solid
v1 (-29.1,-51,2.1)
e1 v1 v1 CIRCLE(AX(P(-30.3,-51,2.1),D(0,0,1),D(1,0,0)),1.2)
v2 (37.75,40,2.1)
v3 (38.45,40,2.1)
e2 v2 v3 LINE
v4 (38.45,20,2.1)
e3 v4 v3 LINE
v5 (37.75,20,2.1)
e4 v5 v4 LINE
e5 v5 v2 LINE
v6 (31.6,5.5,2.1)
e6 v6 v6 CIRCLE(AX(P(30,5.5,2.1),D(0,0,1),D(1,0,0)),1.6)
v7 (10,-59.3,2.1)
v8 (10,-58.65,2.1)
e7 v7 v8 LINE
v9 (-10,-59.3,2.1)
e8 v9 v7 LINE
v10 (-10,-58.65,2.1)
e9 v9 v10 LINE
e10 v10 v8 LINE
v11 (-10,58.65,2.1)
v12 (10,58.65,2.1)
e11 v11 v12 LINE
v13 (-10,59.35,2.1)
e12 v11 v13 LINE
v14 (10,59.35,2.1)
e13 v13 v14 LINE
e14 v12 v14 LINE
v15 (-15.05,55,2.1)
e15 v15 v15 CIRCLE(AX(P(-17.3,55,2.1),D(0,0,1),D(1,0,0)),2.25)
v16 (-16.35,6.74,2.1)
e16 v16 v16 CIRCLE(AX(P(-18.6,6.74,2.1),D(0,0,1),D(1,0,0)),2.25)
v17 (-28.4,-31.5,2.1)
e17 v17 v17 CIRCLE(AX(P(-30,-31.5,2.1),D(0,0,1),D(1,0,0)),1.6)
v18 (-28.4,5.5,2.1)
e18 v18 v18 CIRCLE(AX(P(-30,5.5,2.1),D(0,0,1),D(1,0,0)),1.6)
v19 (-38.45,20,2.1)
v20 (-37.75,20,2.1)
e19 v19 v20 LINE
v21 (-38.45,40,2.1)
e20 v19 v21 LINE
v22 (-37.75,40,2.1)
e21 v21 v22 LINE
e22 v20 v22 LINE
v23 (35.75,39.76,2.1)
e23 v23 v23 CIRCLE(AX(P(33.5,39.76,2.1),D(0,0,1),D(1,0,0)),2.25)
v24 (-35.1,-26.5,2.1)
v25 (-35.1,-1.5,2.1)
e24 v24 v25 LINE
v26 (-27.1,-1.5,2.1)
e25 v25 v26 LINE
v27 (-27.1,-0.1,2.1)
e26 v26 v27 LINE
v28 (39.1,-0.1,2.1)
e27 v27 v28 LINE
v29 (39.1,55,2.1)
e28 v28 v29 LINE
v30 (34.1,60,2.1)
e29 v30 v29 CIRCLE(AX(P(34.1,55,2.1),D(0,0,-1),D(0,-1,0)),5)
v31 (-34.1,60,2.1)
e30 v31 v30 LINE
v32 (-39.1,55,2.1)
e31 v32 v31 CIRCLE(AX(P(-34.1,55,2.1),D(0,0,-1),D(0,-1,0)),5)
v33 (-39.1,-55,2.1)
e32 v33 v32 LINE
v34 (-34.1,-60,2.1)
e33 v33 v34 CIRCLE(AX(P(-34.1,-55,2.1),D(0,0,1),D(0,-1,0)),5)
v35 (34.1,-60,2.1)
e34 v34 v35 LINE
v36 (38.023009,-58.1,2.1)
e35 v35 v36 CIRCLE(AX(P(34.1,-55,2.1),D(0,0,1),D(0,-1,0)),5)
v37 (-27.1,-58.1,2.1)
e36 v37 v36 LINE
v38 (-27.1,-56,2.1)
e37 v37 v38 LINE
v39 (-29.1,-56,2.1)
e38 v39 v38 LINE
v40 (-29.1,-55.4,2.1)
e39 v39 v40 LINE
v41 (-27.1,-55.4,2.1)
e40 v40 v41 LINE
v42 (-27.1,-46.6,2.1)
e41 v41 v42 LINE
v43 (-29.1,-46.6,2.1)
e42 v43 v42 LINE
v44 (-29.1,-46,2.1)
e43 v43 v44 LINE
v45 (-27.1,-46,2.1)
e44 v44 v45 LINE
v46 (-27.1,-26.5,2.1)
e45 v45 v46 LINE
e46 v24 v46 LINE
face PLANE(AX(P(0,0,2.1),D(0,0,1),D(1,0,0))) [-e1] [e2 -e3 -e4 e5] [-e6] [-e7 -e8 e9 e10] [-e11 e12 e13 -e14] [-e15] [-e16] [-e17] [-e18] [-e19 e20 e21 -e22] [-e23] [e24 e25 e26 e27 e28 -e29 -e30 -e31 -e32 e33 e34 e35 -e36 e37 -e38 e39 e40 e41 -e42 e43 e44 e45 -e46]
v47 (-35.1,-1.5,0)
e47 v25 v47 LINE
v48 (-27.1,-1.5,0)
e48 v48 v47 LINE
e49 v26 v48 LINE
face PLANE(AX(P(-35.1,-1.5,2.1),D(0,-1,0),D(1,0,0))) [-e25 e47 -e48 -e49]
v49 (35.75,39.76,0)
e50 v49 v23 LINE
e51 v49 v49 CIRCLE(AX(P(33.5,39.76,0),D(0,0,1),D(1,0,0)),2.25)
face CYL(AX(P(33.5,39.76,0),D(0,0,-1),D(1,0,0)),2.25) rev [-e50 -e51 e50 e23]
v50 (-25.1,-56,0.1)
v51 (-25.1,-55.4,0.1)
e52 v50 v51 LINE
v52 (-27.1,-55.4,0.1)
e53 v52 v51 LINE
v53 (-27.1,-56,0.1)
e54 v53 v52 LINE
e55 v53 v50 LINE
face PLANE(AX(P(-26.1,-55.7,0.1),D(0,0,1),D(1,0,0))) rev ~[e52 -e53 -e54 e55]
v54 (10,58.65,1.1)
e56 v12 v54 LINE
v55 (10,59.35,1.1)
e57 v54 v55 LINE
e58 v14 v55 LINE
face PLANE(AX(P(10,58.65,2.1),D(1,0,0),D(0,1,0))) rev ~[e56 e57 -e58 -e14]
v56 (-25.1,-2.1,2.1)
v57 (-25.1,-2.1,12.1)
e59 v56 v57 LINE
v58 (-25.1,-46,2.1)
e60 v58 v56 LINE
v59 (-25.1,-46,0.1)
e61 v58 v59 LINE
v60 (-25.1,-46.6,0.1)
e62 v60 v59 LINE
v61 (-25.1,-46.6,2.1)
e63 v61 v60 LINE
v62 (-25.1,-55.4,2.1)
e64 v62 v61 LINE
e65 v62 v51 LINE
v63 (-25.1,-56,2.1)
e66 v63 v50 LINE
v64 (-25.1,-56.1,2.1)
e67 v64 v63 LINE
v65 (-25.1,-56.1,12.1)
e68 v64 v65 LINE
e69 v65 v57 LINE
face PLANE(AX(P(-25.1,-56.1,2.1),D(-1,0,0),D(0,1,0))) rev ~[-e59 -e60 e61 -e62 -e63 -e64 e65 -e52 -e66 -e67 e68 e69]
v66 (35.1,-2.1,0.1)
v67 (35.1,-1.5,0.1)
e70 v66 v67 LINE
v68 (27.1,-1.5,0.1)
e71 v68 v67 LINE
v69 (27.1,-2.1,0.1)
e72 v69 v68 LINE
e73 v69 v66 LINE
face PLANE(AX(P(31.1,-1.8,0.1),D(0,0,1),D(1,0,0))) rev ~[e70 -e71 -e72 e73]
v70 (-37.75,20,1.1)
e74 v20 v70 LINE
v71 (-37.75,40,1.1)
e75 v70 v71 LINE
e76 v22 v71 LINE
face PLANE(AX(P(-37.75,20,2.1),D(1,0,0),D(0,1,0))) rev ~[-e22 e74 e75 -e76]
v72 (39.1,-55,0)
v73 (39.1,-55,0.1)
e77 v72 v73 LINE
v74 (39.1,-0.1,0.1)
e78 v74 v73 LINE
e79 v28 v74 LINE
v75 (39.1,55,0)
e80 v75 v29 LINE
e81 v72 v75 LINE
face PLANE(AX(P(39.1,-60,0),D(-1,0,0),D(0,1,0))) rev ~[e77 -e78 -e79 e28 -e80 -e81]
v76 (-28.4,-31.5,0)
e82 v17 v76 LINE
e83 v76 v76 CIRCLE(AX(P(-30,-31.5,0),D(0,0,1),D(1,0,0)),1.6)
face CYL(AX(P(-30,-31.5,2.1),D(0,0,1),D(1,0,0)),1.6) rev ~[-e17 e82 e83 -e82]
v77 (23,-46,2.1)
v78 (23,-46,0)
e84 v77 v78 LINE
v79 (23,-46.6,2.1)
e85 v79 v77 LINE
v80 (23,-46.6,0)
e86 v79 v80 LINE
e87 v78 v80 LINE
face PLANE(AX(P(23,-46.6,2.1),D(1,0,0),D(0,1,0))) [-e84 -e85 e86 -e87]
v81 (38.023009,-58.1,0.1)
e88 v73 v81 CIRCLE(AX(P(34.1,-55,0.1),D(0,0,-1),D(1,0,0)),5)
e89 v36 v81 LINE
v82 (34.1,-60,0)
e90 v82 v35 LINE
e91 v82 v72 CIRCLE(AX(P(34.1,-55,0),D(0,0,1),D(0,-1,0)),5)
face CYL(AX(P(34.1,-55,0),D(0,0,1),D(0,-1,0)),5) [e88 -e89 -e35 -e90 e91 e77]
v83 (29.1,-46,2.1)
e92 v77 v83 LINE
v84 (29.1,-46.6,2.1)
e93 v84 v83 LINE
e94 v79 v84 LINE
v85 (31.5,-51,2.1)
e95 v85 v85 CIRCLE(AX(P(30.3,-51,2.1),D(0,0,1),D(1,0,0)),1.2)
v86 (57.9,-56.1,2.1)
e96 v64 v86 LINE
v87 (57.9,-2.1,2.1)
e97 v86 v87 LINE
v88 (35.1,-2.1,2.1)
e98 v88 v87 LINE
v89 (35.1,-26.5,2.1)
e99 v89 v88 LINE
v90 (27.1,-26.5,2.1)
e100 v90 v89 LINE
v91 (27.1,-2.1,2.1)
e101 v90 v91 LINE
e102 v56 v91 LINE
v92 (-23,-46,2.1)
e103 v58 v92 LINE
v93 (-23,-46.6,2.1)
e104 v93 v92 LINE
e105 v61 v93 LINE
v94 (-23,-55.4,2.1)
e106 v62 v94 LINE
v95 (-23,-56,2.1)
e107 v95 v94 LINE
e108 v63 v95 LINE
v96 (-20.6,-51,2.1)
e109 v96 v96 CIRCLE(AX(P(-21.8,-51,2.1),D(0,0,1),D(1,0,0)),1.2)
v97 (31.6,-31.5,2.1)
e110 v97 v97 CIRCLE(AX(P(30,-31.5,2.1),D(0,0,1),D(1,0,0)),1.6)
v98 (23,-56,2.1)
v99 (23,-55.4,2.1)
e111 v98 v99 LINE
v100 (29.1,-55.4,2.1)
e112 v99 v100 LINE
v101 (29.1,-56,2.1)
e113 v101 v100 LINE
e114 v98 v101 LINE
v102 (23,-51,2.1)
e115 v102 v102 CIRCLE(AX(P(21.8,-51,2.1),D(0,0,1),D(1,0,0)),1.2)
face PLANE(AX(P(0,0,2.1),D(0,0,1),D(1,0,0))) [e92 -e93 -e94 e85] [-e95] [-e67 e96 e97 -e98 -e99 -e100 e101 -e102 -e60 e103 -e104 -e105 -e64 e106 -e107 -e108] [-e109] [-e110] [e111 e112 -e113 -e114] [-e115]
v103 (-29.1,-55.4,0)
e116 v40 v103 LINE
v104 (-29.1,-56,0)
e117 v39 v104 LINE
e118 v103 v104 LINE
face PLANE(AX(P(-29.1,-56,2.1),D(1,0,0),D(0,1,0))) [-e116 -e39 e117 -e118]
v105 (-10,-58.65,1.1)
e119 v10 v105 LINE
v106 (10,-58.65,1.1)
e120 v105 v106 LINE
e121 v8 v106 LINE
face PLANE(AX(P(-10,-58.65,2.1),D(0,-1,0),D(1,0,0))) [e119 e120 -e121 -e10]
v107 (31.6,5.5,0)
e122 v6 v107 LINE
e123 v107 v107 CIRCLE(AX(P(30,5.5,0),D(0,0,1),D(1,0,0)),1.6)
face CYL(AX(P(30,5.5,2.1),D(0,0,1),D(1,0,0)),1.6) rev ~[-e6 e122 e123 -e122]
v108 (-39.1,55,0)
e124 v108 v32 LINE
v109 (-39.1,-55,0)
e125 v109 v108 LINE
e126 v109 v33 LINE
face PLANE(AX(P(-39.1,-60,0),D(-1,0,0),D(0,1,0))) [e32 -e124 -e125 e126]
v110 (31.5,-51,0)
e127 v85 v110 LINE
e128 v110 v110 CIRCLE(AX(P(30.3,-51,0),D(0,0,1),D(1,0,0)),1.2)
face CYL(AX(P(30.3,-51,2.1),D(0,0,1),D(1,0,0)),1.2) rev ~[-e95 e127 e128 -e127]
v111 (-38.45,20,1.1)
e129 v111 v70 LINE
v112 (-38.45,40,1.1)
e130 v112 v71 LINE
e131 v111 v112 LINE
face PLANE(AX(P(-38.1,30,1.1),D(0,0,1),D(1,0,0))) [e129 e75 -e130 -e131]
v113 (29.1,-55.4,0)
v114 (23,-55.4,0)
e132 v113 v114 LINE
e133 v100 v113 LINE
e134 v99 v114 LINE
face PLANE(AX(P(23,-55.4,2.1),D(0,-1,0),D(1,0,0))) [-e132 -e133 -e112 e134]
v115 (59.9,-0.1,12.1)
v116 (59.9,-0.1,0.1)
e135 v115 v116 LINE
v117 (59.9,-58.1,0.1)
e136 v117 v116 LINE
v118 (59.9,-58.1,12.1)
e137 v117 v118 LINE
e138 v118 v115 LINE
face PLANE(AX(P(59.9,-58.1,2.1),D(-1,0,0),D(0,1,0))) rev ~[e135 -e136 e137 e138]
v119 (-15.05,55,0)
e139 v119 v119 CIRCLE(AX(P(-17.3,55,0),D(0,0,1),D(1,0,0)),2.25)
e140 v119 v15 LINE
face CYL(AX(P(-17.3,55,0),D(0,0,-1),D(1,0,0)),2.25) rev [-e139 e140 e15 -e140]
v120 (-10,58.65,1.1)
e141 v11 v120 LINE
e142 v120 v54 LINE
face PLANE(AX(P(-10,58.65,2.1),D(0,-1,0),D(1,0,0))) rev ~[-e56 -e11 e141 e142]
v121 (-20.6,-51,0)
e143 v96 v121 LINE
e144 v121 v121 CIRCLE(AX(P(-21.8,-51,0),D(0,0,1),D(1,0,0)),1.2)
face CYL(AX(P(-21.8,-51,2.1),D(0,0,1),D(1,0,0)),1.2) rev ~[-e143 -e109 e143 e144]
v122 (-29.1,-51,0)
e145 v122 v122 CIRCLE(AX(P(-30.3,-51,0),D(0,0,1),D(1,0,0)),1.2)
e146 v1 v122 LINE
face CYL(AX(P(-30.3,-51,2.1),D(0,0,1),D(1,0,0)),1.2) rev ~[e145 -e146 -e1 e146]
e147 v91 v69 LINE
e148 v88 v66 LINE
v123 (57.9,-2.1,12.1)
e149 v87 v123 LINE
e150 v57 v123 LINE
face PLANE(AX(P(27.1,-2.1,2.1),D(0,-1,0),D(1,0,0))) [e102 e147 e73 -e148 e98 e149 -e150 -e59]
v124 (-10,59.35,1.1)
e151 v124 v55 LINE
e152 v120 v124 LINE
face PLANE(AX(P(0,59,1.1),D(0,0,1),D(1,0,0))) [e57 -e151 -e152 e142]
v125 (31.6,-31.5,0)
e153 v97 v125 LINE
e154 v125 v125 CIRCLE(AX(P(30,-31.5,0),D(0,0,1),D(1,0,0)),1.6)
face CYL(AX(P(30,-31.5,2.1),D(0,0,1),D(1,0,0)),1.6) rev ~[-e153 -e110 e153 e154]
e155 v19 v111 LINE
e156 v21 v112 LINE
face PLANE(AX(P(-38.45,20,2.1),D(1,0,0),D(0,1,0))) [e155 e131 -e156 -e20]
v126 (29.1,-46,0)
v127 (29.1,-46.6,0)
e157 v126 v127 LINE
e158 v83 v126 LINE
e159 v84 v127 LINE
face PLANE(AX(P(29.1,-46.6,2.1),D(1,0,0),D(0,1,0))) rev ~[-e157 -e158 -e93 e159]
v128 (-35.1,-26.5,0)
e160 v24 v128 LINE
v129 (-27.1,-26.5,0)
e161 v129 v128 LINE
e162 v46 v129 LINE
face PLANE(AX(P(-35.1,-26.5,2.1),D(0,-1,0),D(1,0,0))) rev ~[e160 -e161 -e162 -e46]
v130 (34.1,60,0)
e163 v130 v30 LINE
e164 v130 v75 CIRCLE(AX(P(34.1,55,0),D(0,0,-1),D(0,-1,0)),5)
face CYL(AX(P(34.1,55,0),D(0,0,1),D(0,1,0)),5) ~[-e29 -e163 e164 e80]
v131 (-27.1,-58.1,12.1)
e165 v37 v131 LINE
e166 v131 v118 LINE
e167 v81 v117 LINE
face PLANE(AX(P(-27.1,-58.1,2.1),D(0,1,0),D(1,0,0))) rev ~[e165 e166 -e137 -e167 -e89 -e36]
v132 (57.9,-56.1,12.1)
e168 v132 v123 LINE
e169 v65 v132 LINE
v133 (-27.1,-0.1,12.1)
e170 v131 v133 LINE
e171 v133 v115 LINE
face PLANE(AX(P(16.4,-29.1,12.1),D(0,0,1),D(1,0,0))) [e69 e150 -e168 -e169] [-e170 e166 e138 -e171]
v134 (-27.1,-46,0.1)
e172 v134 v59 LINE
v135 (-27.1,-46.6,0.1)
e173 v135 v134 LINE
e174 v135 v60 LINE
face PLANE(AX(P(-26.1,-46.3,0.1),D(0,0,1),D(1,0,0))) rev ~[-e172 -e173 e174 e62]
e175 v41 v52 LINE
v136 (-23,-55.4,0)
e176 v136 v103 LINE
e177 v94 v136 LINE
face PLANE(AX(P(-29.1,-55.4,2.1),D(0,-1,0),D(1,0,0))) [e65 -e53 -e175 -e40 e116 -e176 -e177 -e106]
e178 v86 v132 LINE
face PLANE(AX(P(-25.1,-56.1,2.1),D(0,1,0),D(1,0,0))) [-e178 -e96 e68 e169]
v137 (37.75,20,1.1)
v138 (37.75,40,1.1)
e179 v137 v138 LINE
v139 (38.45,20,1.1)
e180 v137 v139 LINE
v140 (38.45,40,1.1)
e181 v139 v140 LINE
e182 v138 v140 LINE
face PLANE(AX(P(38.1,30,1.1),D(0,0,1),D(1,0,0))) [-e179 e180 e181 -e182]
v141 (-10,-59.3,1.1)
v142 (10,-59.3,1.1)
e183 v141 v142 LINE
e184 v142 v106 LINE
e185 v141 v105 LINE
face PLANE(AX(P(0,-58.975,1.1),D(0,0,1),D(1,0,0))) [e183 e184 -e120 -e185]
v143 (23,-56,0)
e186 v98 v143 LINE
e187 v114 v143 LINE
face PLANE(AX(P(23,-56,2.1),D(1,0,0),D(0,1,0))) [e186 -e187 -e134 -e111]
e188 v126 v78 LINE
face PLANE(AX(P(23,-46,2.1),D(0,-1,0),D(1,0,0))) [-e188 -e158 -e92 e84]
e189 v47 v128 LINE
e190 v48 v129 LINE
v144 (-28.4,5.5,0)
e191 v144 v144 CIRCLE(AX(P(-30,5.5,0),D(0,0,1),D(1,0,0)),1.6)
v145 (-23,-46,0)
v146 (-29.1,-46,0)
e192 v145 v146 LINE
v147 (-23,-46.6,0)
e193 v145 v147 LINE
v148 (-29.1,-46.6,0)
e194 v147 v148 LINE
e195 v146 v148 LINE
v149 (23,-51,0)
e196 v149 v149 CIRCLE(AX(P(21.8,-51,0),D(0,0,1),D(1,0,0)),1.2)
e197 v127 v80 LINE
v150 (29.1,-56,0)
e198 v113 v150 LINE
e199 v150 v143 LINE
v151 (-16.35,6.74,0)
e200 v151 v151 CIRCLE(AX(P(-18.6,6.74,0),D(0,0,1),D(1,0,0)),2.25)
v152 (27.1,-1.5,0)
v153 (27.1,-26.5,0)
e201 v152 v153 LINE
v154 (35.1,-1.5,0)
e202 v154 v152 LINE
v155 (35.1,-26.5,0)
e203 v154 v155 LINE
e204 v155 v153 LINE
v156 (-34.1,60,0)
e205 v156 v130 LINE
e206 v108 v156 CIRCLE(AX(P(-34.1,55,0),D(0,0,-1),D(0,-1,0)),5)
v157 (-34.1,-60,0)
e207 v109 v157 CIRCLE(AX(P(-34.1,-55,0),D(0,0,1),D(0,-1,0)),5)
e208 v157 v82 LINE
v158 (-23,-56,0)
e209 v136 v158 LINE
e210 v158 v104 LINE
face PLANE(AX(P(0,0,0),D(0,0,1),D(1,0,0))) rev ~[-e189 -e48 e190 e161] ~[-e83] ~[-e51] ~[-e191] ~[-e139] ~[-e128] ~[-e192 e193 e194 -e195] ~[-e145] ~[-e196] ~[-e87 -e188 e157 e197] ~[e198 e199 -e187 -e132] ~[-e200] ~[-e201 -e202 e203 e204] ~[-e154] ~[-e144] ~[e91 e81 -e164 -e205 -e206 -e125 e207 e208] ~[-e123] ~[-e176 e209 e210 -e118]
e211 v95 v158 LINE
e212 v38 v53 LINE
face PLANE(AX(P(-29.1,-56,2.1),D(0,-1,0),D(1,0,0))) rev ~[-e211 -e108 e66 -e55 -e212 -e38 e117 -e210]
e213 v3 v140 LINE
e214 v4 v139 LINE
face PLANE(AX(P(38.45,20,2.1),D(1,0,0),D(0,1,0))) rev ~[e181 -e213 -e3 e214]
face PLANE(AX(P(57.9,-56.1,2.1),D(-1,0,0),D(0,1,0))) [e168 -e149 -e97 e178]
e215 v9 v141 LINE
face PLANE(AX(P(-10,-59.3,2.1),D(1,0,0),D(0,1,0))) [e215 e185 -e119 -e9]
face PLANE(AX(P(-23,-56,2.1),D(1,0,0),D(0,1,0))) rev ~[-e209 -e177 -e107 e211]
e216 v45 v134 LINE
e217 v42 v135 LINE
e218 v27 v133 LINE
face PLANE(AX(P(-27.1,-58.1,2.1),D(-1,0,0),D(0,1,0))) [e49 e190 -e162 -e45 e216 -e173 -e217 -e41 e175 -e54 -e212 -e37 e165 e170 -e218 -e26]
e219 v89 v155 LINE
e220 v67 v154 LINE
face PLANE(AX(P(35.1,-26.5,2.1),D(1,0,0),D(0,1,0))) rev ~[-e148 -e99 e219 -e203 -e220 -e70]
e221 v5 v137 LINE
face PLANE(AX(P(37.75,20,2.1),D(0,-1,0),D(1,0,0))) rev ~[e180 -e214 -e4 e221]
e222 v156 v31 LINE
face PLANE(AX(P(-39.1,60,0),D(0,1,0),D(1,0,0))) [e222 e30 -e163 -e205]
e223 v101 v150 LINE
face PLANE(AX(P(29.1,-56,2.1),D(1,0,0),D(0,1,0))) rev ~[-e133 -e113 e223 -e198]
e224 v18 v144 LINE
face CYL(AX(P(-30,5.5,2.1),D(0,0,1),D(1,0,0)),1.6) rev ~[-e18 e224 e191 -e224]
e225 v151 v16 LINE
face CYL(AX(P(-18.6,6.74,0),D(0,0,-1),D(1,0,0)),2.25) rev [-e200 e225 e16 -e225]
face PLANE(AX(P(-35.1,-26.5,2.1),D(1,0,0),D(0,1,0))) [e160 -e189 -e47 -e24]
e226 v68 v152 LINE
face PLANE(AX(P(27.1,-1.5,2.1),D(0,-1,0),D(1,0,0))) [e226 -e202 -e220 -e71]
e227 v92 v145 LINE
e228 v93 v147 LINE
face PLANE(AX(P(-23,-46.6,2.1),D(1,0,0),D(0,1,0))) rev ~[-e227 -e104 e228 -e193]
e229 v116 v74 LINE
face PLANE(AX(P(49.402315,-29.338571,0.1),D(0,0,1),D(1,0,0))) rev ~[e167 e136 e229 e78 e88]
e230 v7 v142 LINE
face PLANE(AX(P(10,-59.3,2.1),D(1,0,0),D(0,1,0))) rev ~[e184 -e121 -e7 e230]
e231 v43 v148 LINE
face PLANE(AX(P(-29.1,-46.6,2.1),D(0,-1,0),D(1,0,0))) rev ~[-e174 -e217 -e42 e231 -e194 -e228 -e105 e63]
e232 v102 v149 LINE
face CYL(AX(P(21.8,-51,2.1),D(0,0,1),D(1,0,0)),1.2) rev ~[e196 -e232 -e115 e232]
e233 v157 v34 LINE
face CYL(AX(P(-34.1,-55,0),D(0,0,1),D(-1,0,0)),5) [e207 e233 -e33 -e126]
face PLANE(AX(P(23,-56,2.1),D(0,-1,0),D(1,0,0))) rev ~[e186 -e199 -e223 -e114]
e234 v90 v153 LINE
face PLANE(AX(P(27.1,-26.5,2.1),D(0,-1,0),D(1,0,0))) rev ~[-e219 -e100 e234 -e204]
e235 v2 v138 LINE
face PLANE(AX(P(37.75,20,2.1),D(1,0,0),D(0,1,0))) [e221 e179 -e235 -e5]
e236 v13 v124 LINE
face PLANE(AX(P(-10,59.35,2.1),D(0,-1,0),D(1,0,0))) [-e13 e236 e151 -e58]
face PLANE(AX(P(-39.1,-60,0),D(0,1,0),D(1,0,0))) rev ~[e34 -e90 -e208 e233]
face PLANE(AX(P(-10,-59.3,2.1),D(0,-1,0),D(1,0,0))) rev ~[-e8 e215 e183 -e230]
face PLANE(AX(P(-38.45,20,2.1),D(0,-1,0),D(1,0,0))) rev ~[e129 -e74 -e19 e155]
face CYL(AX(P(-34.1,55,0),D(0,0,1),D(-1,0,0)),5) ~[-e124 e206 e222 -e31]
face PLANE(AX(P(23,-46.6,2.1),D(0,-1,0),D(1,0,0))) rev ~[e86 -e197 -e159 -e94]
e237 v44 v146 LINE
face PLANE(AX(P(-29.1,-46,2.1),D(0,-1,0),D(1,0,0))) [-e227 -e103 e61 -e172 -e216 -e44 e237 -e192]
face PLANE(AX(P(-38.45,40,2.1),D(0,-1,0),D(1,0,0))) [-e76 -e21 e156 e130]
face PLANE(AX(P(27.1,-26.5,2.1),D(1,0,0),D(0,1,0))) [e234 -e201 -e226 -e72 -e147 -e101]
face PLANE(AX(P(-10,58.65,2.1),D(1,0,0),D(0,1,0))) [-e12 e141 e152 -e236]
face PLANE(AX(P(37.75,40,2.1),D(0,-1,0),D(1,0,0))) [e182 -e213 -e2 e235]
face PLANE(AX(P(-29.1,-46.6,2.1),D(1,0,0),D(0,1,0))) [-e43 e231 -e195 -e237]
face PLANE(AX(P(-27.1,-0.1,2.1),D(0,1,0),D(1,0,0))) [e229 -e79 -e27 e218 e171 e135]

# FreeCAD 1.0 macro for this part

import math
import FreeCAD as App
import Part
import Sketcher


def edges_at(feature, points):
    """Names of the edges that pass closest to the given points."""
    edges = feature.Shape.Edges
    near = lambda p: min(range(len(edges)), key=lambda i: edges[i].distToShape(Part.Vertex(*p))[0])
    return sorted({f"Edge{near(p) + 1}" for p in points})

doc = App.newDocument("Part")
body = doc.addObject("PartDesign::Body", "Body")

sketch1 = body.newObject("Sketcher::SketchObject", "Sketch")
sketch1.AttachmentSupport = (doc.getObject("XY_Plane"), [""])
sketch1.MapMode = "FlatFace"
sketch1.addGeometry([
    Part.LineSegment(App.Vector(-39.1, 60, 0), App.Vector(-39.1, -60, 0)),
    Part.LineSegment(App.Vector(-39.1, -60, 0), App.Vector(39.1, -60, 0)),
    Part.LineSegment(App.Vector(39.1, -60, 0), App.Vector(39.1, 60, 0)),
    Part.LineSegment(App.Vector(39.1, 60, 0), App.Vector(-39.1, 60, 0)),
    Part.Circle(App.Vector(-18.6, 6.7, 0), App.Vector(0, 0, 1), 2.2),
    Part.Circle(App.Vector(-17.3, 55, 0), App.Vector(0, 0, 1), 2.2),
    Part.Circle(App.Vector(33.5, 39.8, 0), App.Vector(0, 0, 1), 2.2),
], False)
sketch1.addConstraint([
    Sketcher.Constraint("Coincident", 0, 2, 1, 1),
    Sketcher.Constraint("Coincident", 1, 2, 2, 1),
    Sketcher.Constraint("Coincident", 2, 2, 3, 1),
    Sketcher.Constraint("Coincident", 3, 2, 0, 1),
    Sketcher.Constraint("Vertical", 0),
    Sketcher.Constraint("Horizontal", 1),
    Sketcher.Constraint("Vertical", 2),
    Sketcher.Constraint("Horizontal", 3),
    Sketcher.Constraint("Equal", 4, 5),
    Sketcher.Constraint("Equal", 5, 6),
    Sketcher.Constraint("Symmetric", 0, 2, 2, 2, -1, 1),
    Sketcher.Constraint("Diameter", 4, 4.5),
    Sketcher.Constraint("DistanceY", 0, 2, 0, 1, 120.0),
    Sketcher.Constraint("DistanceX", 1, 1, 1, 2, 78.2),
    Sketcher.Constraint("DistanceY", -1, 1, 5, 3, 55.0),
    Sketcher.Constraint("DistanceX", 4, 3, -1, 1, 18.6),
    Sketcher.Constraint("DistanceX", 5, 3, -1, 1, 17.3),
    Sketcher.Constraint("DistanceX", -1, 1, 6, 3, 33.5),
    Sketcher.Constraint("DistanceY", -1, 1, 4, 3, 6.74),
    Sketcher.Constraint("DistanceY", -1, 1, 6, 3, 39.76),
])
pad1 = body.newObject("PartDesign::Pad", "Pad")
pad1.Profile = sketch1
pad1.Length = 2.1

sketch2 = body.newObject("Sketcher::SketchObject", "Sketch001")
sketch2.AttachmentSupport = (doc.getObject("XY_Plane"), [""])
sketch2.MapMode = "FlatFace"
sketch2.AttachmentOffset = App.Placement(App.Vector(0, 0, 2.1), App.Rotation())
sketch2.addGeometry(Part.Circle(App.Vector(-30.3, -51, 0), App.Vector(0, 0, 1), 1.2), False)
sketch2.addConstraint([
    Sketcher.Constraint("Diameter", 0, 2.4),
    Sketcher.Constraint("DistanceY", 0, 3, -1, 1, 51.0),
    Sketcher.Constraint("DistanceX", 0, 3, -1, 1, 30.3),
])
pocket1 = body.newObject("PartDesign::Pocket", "Pocket")
pocket1.Profile = sketch2
pocket1.Type = "UpToFirst"

sketch3 = body.newObject("Sketcher::SketchObject", "Sketch002")
sketch3.AttachmentSupport = (doc.getObject("XY_Plane"), [""])
sketch3.MapMode = "FlatFace"
sketch3.AttachmentOffset = App.Placement(App.Vector(0, 0, 2.1), App.Rotation())
sketch3.addGeometry(Part.Circle(App.Vector(-21.8, -51, 0), App.Vector(0, 0, 1), 1.2), False)
sketch3.addConstraint([
    Sketcher.Constraint("Diameter", 0, 2.4),
    Sketcher.Constraint("DistanceY", 0, 3, -1, 1, 51.0),
    Sketcher.Constraint("DistanceX", 0, 3, -1, 1, 21.8),
])
pocket2 = body.newObject("PartDesign::Pocket", "Pocket001")
pocket2.Profile = sketch3
pocket2.Type = "UpToFirst"

sketch4 = body.newObject("Sketcher::SketchObject", "Sketch003")
sketch4.AttachmentSupport = (doc.getObject("XY_Plane"), [""])
sketch4.MapMode = "FlatFace"
sketch4.AttachmentOffset = App.Placement(App.Vector(0, 0, 2.1), App.Rotation())
sketch4.addGeometry(Part.Circle(App.Vector(21.8, -51, 0), App.Vector(0, 0, 1), 1.2), False)
sketch4.addConstraint([
    Sketcher.Constraint("Diameter", 0, 2.4),
    Sketcher.Constraint("DistanceY", 0, 3, -1, 1, 51.0),
    Sketcher.Constraint("DistanceX", -1, 1, 0, 3, 21.8),
])
pocket3 = body.newObject("PartDesign::Pocket", "Pocket002")
pocket3.Profile = sketch4
pocket3.Type = "UpToFirst"

sketch5 = body.newObject("Sketcher::SketchObject", "Sketch004")
sketch5.AttachmentSupport = (doc.getObject("XY_Plane"), [""])
sketch5.MapMode = "FlatFace"
sketch5.AttachmentOffset = App.Placement(App.Vector(0, 0, 2.1), App.Rotation())
sketch5.addGeometry(Part.Circle(App.Vector(30.3, -51, 0), App.Vector(0, 0, 1), 1.2), False)
sketch5.addConstraint([
    Sketcher.Constraint("Diameter", 0, 2.4),
    Sketcher.Constraint("DistanceY", 0, 3, -1, 1, 51.0),
    Sketcher.Constraint("DistanceX", -1, 1, 0, 3, 30.3),
])
pocket4 = body.newObject("PartDesign::Pocket", "Pocket003")
pocket4.Profile = sketch5
pocket4.Type = "UpToFirst"

sketch6 = body.newObject("Sketcher::SketchObject", "Sketch005")
sketch6.AttachmentSupport = (doc.getObject("XY_Plane"), [""])
sketch6.MapMode = "FlatFace"
sketch6.AttachmentOffset = App.Placement(App.Vector(0, 0, 2.1), App.Rotation())
sketch6.addGeometry([
    Part.LineSegment(App.Vector(-29.1, -46, 0), App.Vector(-29.1, -46.6, 0)),
    Part.LineSegment(App.Vector(-29.1, -46.6, 0), App.Vector(-23, -46.6, 0)),
    Part.LineSegment(App.Vector(-23, -46.6, 0), App.Vector(-23, -46, 0)),
    Part.LineSegment(App.Vector(-23, -46, 0), App.Vector(-29.1, -46, 0)),
], False)
sketch6.addConstraint([
    Sketcher.Constraint("Coincident", 0, 2, 1, 1),
    Sketcher.Constraint("Coincident", 1, 2, 2, 1),
    Sketcher.Constraint("Coincident", 2, 2, 3, 1),
    Sketcher.Constraint("Coincident", 3, 2, 0, 1),
    Sketcher.Constraint("Vertical", 0),
    Sketcher.Constraint("Horizontal", 1),
    Sketcher.Constraint("Vertical", 2),
    Sketcher.Constraint("Horizontal", 3),
    Sketcher.Constraint("DistanceX", 1, 1, 1, 2, 6.1),
    Sketcher.Constraint("DistanceY", 0, 2, 0, 1, 0.6),
    Sketcher.Constraint("DistanceX", 1, 2, -1, 1, 23.0),
    Sketcher.Constraint("DistanceY", 2, 2, -1, 1, 46.0),
])
pocket5 = body.newObject("PartDesign::Pocket", "Pocket004")
pocket5.Profile = sketch6
pocket5.Type = "UpToFirst"

sketch7 = body.newObject("Sketcher::SketchObject", "Sketch006")
sketch7.AttachmentSupport = (doc.getObject("XY_Plane"), [""])
sketch7.MapMode = "FlatFace"
sketch7.AttachmentOffset = App.Placement(App.Vector(0, 0, 2.1), App.Rotation())
sketch7.addGeometry([
    Part.LineSegment(App.Vector(-29.1, -55.4, 0), App.Vector(-29.1, -56, 0)),
    Part.LineSegment(App.Vector(-29.1, -56, 0), App.Vector(-23, -56, 0)),
    Part.LineSegment(App.Vector(-23, -56, 0), App.Vector(-23, -55.4, 0)),
    Part.LineSegment(App.Vector(-23, -55.4, 0), App.Vector(-29.1, -55.4, 0)),
], False)
sketch7.addConstraint([
    Sketcher.Constraint("Coincident", 0, 2, 1, 1),
    Sketcher.Constraint("Coincident", 1, 2, 2, 1),
    Sketcher.Constraint("Coincident", 2, 2, 3, 1),
    Sketcher.Constraint("Coincident", 3, 2, 0, 1),
    Sketcher.Constraint("Vertical", 0),
    Sketcher.Constraint("Horizontal", 1),
    Sketcher.Constraint("Vertical", 2),
    Sketcher.Constraint("Horizontal", 3),
    Sketcher.Constraint("DistanceX", 1, 1, 1, 2, 6.1),
    Sketcher.Constraint("DistanceY", 0, 2, 0, 1, 0.6),
    Sketcher.Constraint("DistanceY", 0, 2, -1, 1, 56.0),
    Sketcher.Constraint("DistanceX", 1, 2, -1, 1, 23.0),
])
pocket6 = body.newObject("PartDesign::Pocket", "Pocket005")
pocket6.Profile = sketch7
pocket6.Type = "UpToFirst"

sketch8 = body.newObject("Sketcher::SketchObject", "Sketch007")
sketch8.AttachmentSupport = (doc.getObject("XY_Plane"), [""])
sketch8.MapMode = "FlatFace"
sketch8.AttachmentOffset = App.Placement(App.Vector(0, 0, 2.1), App.Rotation())
sketch8.addGeometry([
    Part.LineSegment(App.Vector(23, -55.4, 0), App.Vector(23, -56, 0)),
    Part.LineSegment(App.Vector(23, -56, 0), App.Vector(29.1, -56, 0)),
    Part.LineSegment(App.Vector(29.1, -56, 0), App.Vector(29.1, -55.4, 0)),
    Part.LineSegment(App.Vector(29.1, -55.4, 0), App.Vector(23, -55.4, 0)),
], False)
sketch8.addConstraint([
    Sketcher.Constraint("Coincident", 0, 2, 1, 1),
    Sketcher.Constraint("Coincident", 1, 2, 2, 1),
    Sketcher.Constraint("Coincident", 2, 2, 3, 1),
    Sketcher.Constraint("Coincident", 3, 2, 0, 1),
    Sketcher.Constraint("Vertical", 0),
    Sketcher.Constraint("Horizontal", 1),
    Sketcher.Constraint("Vertical", 2),
    Sketcher.Constraint("Horizontal", 3),
    Sketcher.Constraint("DistanceX", 1, 1, 1, 2, 6.1),
    Sketcher.Constraint("DistanceY", 0, 2, 0, 1, 0.6),
    Sketcher.Constraint("DistanceX", -1, 1, 0, 2, 23.0),
    Sketcher.Constraint("DistanceY", 0, 2, -1, 1, 56.0),
])
pocket7 = body.newObject("PartDesign::Pocket", "Pocket006")
pocket7.Profile = sketch8
pocket7.Type = "UpToFirst"

sketch9 = body.newObject("Sketcher::SketchObject", "Sketch008")
sketch9.AttachmentSupport = (doc.getObject("XY_Plane"), [""])
sketch9.MapMode = "FlatFace"
sketch9.AttachmentOffset = App.Placement(App.Vector(0, 0, 2.1), App.Rotation())
sketch9.addGeometry([
    Part.LineSegment(App.Vector(23, -46, 0), App.Vector(23, -46.6, 0)),
    Part.LineSegment(App.Vector(23, -46.6, 0), App.Vector(29.1, -46.6, 0)),
    Part.LineSegment(App.Vector(29.1, -46.6, 0), App.Vector(29.1, -46, 0)),
    Part.LineSegment(App.Vector(29.1, -46, 0), App.Vector(23, -46, 0)),
], False)
sketch9.addConstraint([
    Sketcher.Constraint("Coincident", 0, 2, 1, 1),
    Sketcher.Constraint("Coincident", 1, 2, 2, 1),
    Sketcher.Constraint("Coincident", 2, 2, 3, 1),
    Sketcher.Constraint("Coincident", 3, 2, 0, 1),
    Sketcher.Constraint("Vertical", 0),
    Sketcher.Constraint("Horizontal", 1),
    Sketcher.Constraint("Vertical", 2),
    Sketcher.Constraint("Horizontal", 3),
    Sketcher.Constraint("DistanceX", 1, 1, 1, 2, 6.1),
    Sketcher.Constraint("DistanceY", 0, 2, 0, 1, 0.6),
    Sketcher.Constraint("DistanceX", -1, 1, 0, 2, 23.0),
    Sketcher.Constraint("DistanceY", 2, 2, -1, 1, 46.0),
])
pocket8 = body.newObject("PartDesign::Pocket", "Pocket007")
pocket8.Profile = sketch9
pocket8.Type = "UpToFirst"

sketch10 = body.newObject("Sketcher::SketchObject", "Sketch009")
sketch10.AttachmentSupport = (doc.getObject("XY_Plane"), [""])
sketch10.MapMode = "FlatFace"
sketch10.AttachmentOffset = App.Placement(App.Vector(0, 0, 2.1), App.Rotation())
sketch10.addGeometry(Part.Circle(App.Vector(-30, -31.5, 0), App.Vector(0, 0, 1), 1.6), False)
sketch10.addConstraint([
    Sketcher.Constraint("Diameter", 0, 3.2),
    Sketcher.Constraint("DistanceX", 0, 3, -1, 1, 30.0),
    Sketcher.Constraint("DistanceY", 0, 3, -1, 1, 31.5),
])
pocket9 = body.newObject("PartDesign::Pocket", "Pocket008")
pocket9.Profile = sketch10
pocket9.Type = "UpToFirst"

sketch11 = body.newObject("Sketcher::SketchObject", "Sketch010")
sketch11.AttachmentSupport = (doc.getObject("XY_Plane"), [""])
sketch11.MapMode = "FlatFace"
sketch11.AttachmentOffset = App.Placement(App.Vector(0, 0, 2.1), App.Rotation())
sketch11.addGeometry(Part.Circle(App.Vector(30, -31.5, 0), App.Vector(0, 0, 1), 1.6), False)
sketch11.addConstraint([
    Sketcher.Constraint("Diameter", 0, 3.2),
    Sketcher.Constraint("DistanceX", -1, 1, 0, 3, 30.0),
    Sketcher.Constraint("DistanceY", 0, 3, -1, 1, 31.5),
])
pocket10 = body.newObject("PartDesign::Pocket", "Pocket009")
pocket10.Profile = sketch11
pocket10.Type = "UpToFirst"

sketch12 = body.newObject("Sketcher::SketchObject", "Sketch011")
sketch12.AttachmentSupport = (doc.getObject("XY_Plane"), [""])
sketch12.MapMode = "FlatFace"
sketch12.AttachmentOffset = App.Placement(App.Vector(0, 0, 2.1), App.Rotation())
sketch12.addGeometry(Part.Circle(App.Vector(30, 5.5, 0), App.Vector(0, 0, 1), 1.6), False)
sketch12.addConstraint([
    Sketcher.Constraint("Diameter", 0, 3.2),
    Sketcher.Constraint("DistanceX", -1, 1, 0, 3, 30.0),
    Sketcher.Constraint("DistanceY", -1, 1, 0, 3, 5.5),
])
pocket11 = body.newObject("PartDesign::Pocket", "Pocket010")
pocket11.Profile = sketch12
pocket11.Type = "UpToFirst"

sketch13 = body.newObject("Sketcher::SketchObject", "Sketch012")
sketch13.AttachmentSupport = (doc.getObject("XY_Plane"), [""])
sketch13.MapMode = "FlatFace"
sketch13.AttachmentOffset = App.Placement(App.Vector(0, 0, 2.1), App.Rotation())
sketch13.addGeometry(Part.Circle(App.Vector(-30, 5.5, 0), App.Vector(0, 0, 1), 1.6), False)
sketch13.addConstraint([
    Sketcher.Constraint("Diameter", 0, 3.2),
    Sketcher.Constraint("DistanceX", 0, 3, -1, 1, 30.0),
    Sketcher.Constraint("DistanceY", -1, 1, 0, 3, 5.5),
])
pocket12 = body.newObject("PartDesign::Pocket", "Pocket011")
pocket12.Profile = sketch13
pocket12.Type = "UpToFirst"

sketch14 = body.newObject("Sketcher::SketchObject", "Sketch013")
sketch14.AttachmentSupport = (doc.getObject("XY_Plane"), [""])
sketch14.MapMode = "FlatFace"
sketch14.AttachmentOffset = App.Placement(App.Vector(0, 0, 2.1), App.Rotation())
sketch14.addGeometry([
    Part.LineSegment(App.Vector(-35, -2, 0), App.Vector(-35, -26, 0)),
    Part.LineSegment(App.Vector(-35, -26, 0), App.Vector(-27, -26, 0)),
    Part.LineSegment(App.Vector(-27, -26, 0), App.Vector(-27, -2, 0)),
    Part.LineSegment(App.Vector(-27, -2, 0), App.Vector(-35, -2, 0)),
], False)
sketch14.addConstraint([
    Sketcher.Constraint("Coincident", 0, 2, 1, 1),
    Sketcher.Constraint("Coincident", 1, 2, 2, 1),
    Sketcher.Constraint("Coincident", 2, 2, 3, 1),
    Sketcher.Constraint("Coincident", 3, 2, 0, 1),
    Sketcher.Constraint("Vertical", 0),
    Sketcher.Constraint("Horizontal", 1),
    Sketcher.Constraint("Vertical", 2),
    Sketcher.Constraint("Horizontal", 3),
    Sketcher.Constraint("DistanceX", 1, 1, 1, 2, 8.0),
    Sketcher.Constraint("DistanceY", 0, 2, 0, 1, 25.0),
    Sketcher.Constraint("DistanceX", 0, 2, -1, 1, 35.1),
    Sketcher.Constraint("DistanceY", 0, 2, -1, 1, 26.5),
])
pocket13 = body.newObject("PartDesign::Pocket", "Pocket012")
pocket13.Profile = sketch14
pocket13.Type = "UpToFirst"

sketch15 = body.newObject("Sketcher::SketchObject", "Sketch014")
sketch15.AttachmentSupport = (doc.getObject("XY_Plane"), [""])
sketch15.MapMode = "FlatFace"
sketch15.AttachmentOffset = App.Placement(App.Vector(0, 0, 2.1), App.Rotation())
sketch15.addGeometry([
    Part.LineSegment(App.Vector(27, -2, 0), App.Vector(27, -26, 0)),
    Part.LineSegment(App.Vector(27, -26, 0), App.Vector(35, -26, 0)),
    Part.LineSegment(App.Vector(35, -26, 0), App.Vector(35, -2, 0)),
    Part.LineSegment(App.Vector(35, -2, 0), App.Vector(27, -2, 0)),
], False)
sketch15.addConstraint([
    Sketcher.Constraint("Coincident", 0, 2, 1, 1),
    Sketcher.Constraint("Coincident", 1, 2, 2, 1),
    Sketcher.Constraint("Coincident", 2, 2, 3, 1),
    Sketcher.Constraint("Coincident", 3, 2, 0, 1),
    Sketcher.Constraint("Vertical", 0),
    Sketcher.Constraint("Horizontal", 1),
    Sketcher.Constraint("Vertical", 2),
    Sketcher.Constraint("Horizontal", 3),
    Sketcher.Constraint("DistanceX", 1, 1, 1, 2, 8.0),
    Sketcher.Constraint("DistanceY", 0, 2, 0, 1, 25.0),
    Sketcher.Constraint("DistanceX", -1, 1, 0, 2, 27.1),
    Sketcher.Constraint("DistanceY", 0, 2, -1, 1, 26.5),
])
pocket14 = body.newObject("PartDesign::Pocket", "Pocket013")
pocket14.Profile = sketch15
pocket14.Type = "UpToFirst"
doc.recompute()

fillet = body.newObject("PartDesign::Fillet", "Fillet")
fillet.Base = (pocket14, edges_at(pocket14, [
    (39.1, -60, 1.05),
    (-39.1, -60, 1.05),
    (-39.1, 60, 1.05),
    (39.1, 60, 1.05),
]))
fillet.Radius = 5

sketch16 = body.newObject("Sketcher::SketchObject", "Sketch015")
sketch16.AttachmentSupport = (doc.getObject("XY_Plane"), [""])
sketch16.MapMode = "FlatFace"
sketch16.AttachmentOffset = App.Placement(App.Vector(0, 0, 2.1), App.Rotation())
sketch16.addGeometry([
    Part.LineSegment(App.Vector(-27, 0, 0), App.Vector(-27, -58, 0)),
    Part.LineSegment(App.Vector(-27, -58, 0), App.Vector(60, -58, 0)),
    Part.LineSegment(App.Vector(60, -58, 0), App.Vector(60, 0, 0)),
    Part.LineSegment(App.Vector(60, 0, 0), App.Vector(-27, 0, 0)),
    Part.LineSegment(App.Vector(58, -56, 0), App.Vector(-25, -56, 0)),
    Part.LineSegment(App.Vector(-25, -56, 0), App.Vector(-25, -2, 0)),
    Part.LineSegment(App.Vector(-25, -2, 0), App.Vector(58, -2, 0)),
    Part.LineSegment(App.Vector(58, -2, 0), App.Vector(58, -56, 0)),
], False)
sketch16.addConstraint([
    Sketcher.Constraint("Coincident", 0, 2, 1, 1),
    Sketcher.Constraint("Coincident", 1, 2, 2, 1),
    Sketcher.Constraint("Coincident", 2, 2, 3, 1),
    Sketcher.Constraint("Coincident", 3, 2, 0, 1),
    Sketcher.Constraint("Coincident", 4, 2, 5, 1),
    Sketcher.Constraint("Coincident", 5, 2, 6, 1),
    Sketcher.Constraint("Coincident", 6, 2, 7, 1),
    Sketcher.Constraint("Coincident", 7, 2, 4, 1),
    Sketcher.Constraint("Vertical", 0),
    Sketcher.Constraint("Horizontal", 1),
    Sketcher.Constraint("Vertical", 2),
    Sketcher.Constraint("Horizontal", 3),
    Sketcher.Constraint("Horizontal", 4),
    Sketcher.Constraint("Vertical", 5),
    Sketcher.Constraint("Horizontal", 6),
    Sketcher.Constraint("Vertical", 7),
    Sketcher.Constraint("DistanceX", 1, 1, 1, 2, 87.0),
    Sketcher.Constraint("DistanceX", 4, 2, 4, 1, 83.0),
    Sketcher.Constraint("DistanceY", 0, 2, 0, 1, 58.0),
    Sketcher.Constraint("DistanceY", 5, 1, 5, 2, 54.0),
    Sketcher.Constraint("DistanceX", 0, 2, 4, 2, 2.0),
    Sketcher.Constraint("DistanceY", 0, 2, 4, 2, 2.0),
    Sketcher.Constraint("DistanceX", 0, 2, -1, 1, 27.1),
    Sketcher.Constraint("DistanceY", 0, 2, -1, 1, 58.1),
])
pad2 = body.newObject("PartDesign::Pad", "Pad001")
pad2.Profile = sketch16
pad2.Length = 10

sketch17 = body.newObject("Sketcher::SketchObject", "Sketch016")
sketch17.AttachmentSupport = (doc.getObject("XY_Plane"), [""])
sketch17.MapMode = "FlatFace"
sketch17.AttachmentOffset = App.Placement(App.Vector(0, 0, 2.1), App.Rotation())
sketch17.addGeometry([
    Part.LineSegment(App.Vector(-38.5, 40, 0), App.Vector(-38.5, 20, 0)),
    Part.LineSegment(App.Vector(-38.5, 20, 0), App.Vector(-37.8, 20, 0)),
    Part.LineSegment(App.Vector(-37.8, 20, 0), App.Vector(-37.8, 40, 0)),
    Part.LineSegment(App.Vector(-37.8, 40, 0), App.Vector(-38.5, 40, 0)),
    Part.LineSegment(App.Vector(37.8, 40, 0), App.Vector(37.8, 20, 0)),
    Part.LineSegment(App.Vector(37.8, 20, 0), App.Vector(38.5, 20, 0)),
    Part.LineSegment(App.Vector(38.5, 20, 0), App.Vector(38.5, 40, 0)),
    Part.LineSegment(App.Vector(38.5, 40, 0), App.Vector(37.8, 40, 0)),
    Part.LineSegment(App.Vector(-10, 59.4, 0), App.Vector(-10, 58.6, 0)),
    Part.LineSegment(App.Vector(-10, 58.6, 0), App.Vector(10, 58.6, 0)),
    Part.LineSegment(App.Vector(10, 58.6, 0), App.Vector(10, 59.4, 0)),
    Part.LineSegment(App.Vector(10, 59.4, 0), App.Vector(-10, 59.4, 0)),
    Part.LineSegment(App.Vector(-10, -58.6, 0), App.Vector(-10, -59.3, 0)),
    Part.LineSegment(App.Vector(-10, -59.3, 0), App.Vector(10, -59.3, 0)),
    Part.LineSegment(App.Vector(10, -59.3, 0), App.Vector(10, -58.6, 0)),
    Part.LineSegment(App.Vector(10, -58.6, 0), App.Vector(-10, -58.6, 0)),
], False)
sketch17.addConstraint([
    Sketcher.Constraint("Coincident", 0, 2, 1, 1),
    Sketcher.Constraint("Coincident", 1, 2, 2, 1),
    Sketcher.Constraint("Coincident", 2, 2, 3, 1),
    Sketcher.Constraint("Coincident", 3, 2, 0, 1),
    Sketcher.Constraint("Coincident", 4, 2, 5, 1),
    Sketcher.Constraint("Coincident", 5, 2, 6, 1),
    Sketcher.Constraint("Coincident", 6, 2, 7, 1),
    Sketcher.Constraint("Coincident", 7, 2, 4, 1),
    Sketcher.Constraint("Coincident", 8, 2, 9, 1),
    Sketcher.Constraint("Coincident", 9, 2, 10, 1),
    Sketcher.Constraint("Coincident", 10, 2, 11, 1),
    Sketcher.Constraint("Coincident", 11, 2, 8, 1),
    Sketcher.Constraint("Coincident", 12, 2, 13, 1),
    Sketcher.Constraint("Coincident", 13, 2, 14, 1),
    Sketcher.Constraint("Coincident", 14, 2, 15, 1),
    Sketcher.Constraint("Coincident", 15, 2, 12, 1),
    Sketcher.Constraint("Vertical", 0),
    Sketcher.Constraint("Horizontal", 1),
    Sketcher.Constraint("Vertical", 2),
    Sketcher.Constraint("Horizontal", 3),
    Sketcher.Constraint("Vertical", 4),
    Sketcher.Constraint("Horizontal", 5),
    Sketcher.Constraint("Vertical", 6),
    Sketcher.Constraint("Horizontal", 7),
    Sketcher.Constraint("Vertical", 8),
    Sketcher.Constraint("Horizontal", 9),
    Sketcher.Constraint("Vertical", 10),
    Sketcher.Constraint("Horizontal", 11),
    Sketcher.Constraint("Vertical", 12),
    Sketcher.Constraint("Horizontal", 13),
    Sketcher.Constraint("Vertical", 14),
    Sketcher.Constraint("Horizontal", 15),
    Sketcher.Constraint("Symmetric", 8, 2, 14, 2, -1, 1),
    Sketcher.Constraint("Symmetric", 1, 2, 4, 2, -2),
    Sketcher.Constraint("Symmetric", 3, 2, 6, 2, -2),
    Sketcher.Constraint("Vertical", 11, 2, 12, 2),
    Sketcher.Constraint("Vertical", 10, 2, 13, 2),
    Sketcher.Constraint("Equal", 15, 0),
    Sketcher.Constraint("Equal", 7, 8),
    Sketcher.Constraint("DistanceX", 9, 1, 9, 2, 20.0),
    Sketcher.Constraint("DistanceX", 1, 1, 1, 2, 0.7),
    Sketcher.Constraint("DistanceY", -1, 1, 0, 2, 20.0),
    Sketcher.Constraint("DistanceY", 12, 2, 12, 1, 0.65),
    Sketcher.Constraint("DistanceY", 12, 2, -1, 1, 59.3),
    Sketcher.Constraint("DistanceX", 1, 2, 4, 2, 75.5),
])
pocket15 = body.newObject("PartDesign::Pocket", "Pocket014")
pocket15.Profile = sketch17
pocket15.Length = 1

sketch18 = body.newObject("Sketcher::SketchObject", "Sketch017")
sketch18.AttachmentSupport = (doc.getObject("XY_Plane"), [""])
sketch18.MapMode = "FlatFace"
sketch18.AttachmentOffset = App.Placement(App.Vector(0, 0, 2.1), App.Rotation())
sketch18.addGeometry([
    Part.LineSegment(App.Vector(27.1, -1.5, 0), App.Vector(27.1, -2.1, 0)),
    Part.LineSegment(App.Vector(27.1, -2.1, 0), App.Vector(35.1, -2.1, 0)),
    Part.LineSegment(App.Vector(35.1, -2.1, 0), App.Vector(35.1, -1.5, 0)),
    Part.LineSegment(App.Vector(35.1, -1.5, 0), App.Vector(27.1, -1.5, 0)),
    Part.LineSegment(App.Vector(-27.1, -46, 0), App.Vector(-27.1, -46.6, 0)),
    Part.LineSegment(App.Vector(-27.1, -46.6, 0), App.Vector(-25.1, -46.6, 0)),
    Part.LineSegment(App.Vector(-25.1, -46.6, 0), App.Vector(-25.1, -46, 0)),
    Part.LineSegment(App.Vector(-25.1, -46, 0), App.Vector(-27.1, -46, 0)),
    Part.LineSegment(App.Vector(39.1, -0.1, 0), App.Vector(39.1, -55, 0)),
    Part.ArcOfCircle(Part.Circle(App.Vector(34.1, -55, 0), App.Vector(0, 0, 1), 5), math.radians(-38), math.radians(0)),
    Part.LineSegment(App.Vector(38, -58.1, 0), App.Vector(59.9, -58.1, 0)),
    Part.LineSegment(App.Vector(59.9, -58.1, 0), App.Vector(59.9, -0.1, 0)),
    Part.LineSegment(App.Vector(59.9, -0.1, 0), App.Vector(39.1, -0.1, 0)),
    Part.LineSegment(App.Vector(-27.1, -55.4, 0), App.Vector(-27.1, -56, 0)),
    Part.LineSegment(App.Vector(-27.1, -56, 0), App.Vector(-25.1, -56, 0)),
    Part.LineSegment(App.Vector(-25.1, -56, 0), App.Vector(-25.1, -55.4, 0)),
    Part.LineSegment(App.Vector(-25.1, -55.4, 0), App.Vector(-27.1, -55.4, 0)),
], False)
sketch18.addConstraint([
    Sketcher.Constraint("Coincident", 0, 2, 1, 1),
    Sketcher.Constraint("Coincident", 1, 2, 2, 1),
    Sketcher.Constraint("Coincident", 2, 2, 3, 1),
    Sketcher.Constraint("Coincident", 3, 2, 0, 1),
    Sketcher.Constraint("Coincident", 4, 2, 5, 1),
    Sketcher.Constraint("Coincident", 5, 2, 6, 1),
    Sketcher.Constraint("Coincident", 6, 2, 7, 1),
    Sketcher.Constraint("Coincident", 7, 2, 4, 1),
    Sketcher.Constraint("Tangent", 8, 2, 9, 2),
    Sketcher.Constraint("Coincident", 9, 1, 10, 1),
    Sketcher.Constraint("Coincident", 10, 2, 11, 1),
    Sketcher.Constraint("Coincident", 11, 2, 12, 1),
    Sketcher.Constraint("Coincident", 12, 2, 8, 1),
    Sketcher.Constraint("Coincident", 13, 2, 14, 1),
    Sketcher.Constraint("Coincident", 14, 2, 15, 1),
    Sketcher.Constraint("Coincident", 15, 2, 16, 1),
    Sketcher.Constraint("Coincident", 16, 2, 13, 1),
    Sketcher.Constraint("Vertical", 0),
    Sketcher.Constraint("Horizontal", 1),
    Sketcher.Constraint("Vertical", 2),
    Sketcher.Constraint("Horizontal", 3),
    Sketcher.Constraint("Vertical", 4),
    Sketcher.Constraint("Horizontal", 5),
    Sketcher.Constraint("Vertical", 6),
    Sketcher.Constraint("Horizontal", 7),
    Sketcher.Constraint("Vertical", 8),
    Sketcher.Constraint("Horizontal", 10),
    Sketcher.Constraint("Vertical", 11),
    Sketcher.Constraint("Horizontal", 12),
    Sketcher.Constraint("Vertical", 13),
    Sketcher.Constraint("Horizontal", 14),
    Sketcher.Constraint("Vertical", 15),
    Sketcher.Constraint("Horizontal", 16),
    Sketcher.Constraint("Vertical", 7, 2, 13, 2),
    Sketcher.Constraint("Vertical", 6, 2, 14, 2),
    Sketcher.Constraint("Equal", 2, 4),
    Sketcher.Constraint("Equal", 6, 13),
    Sketcher.Constraint("Radius", 9, 5.0),
    Sketcher.Constraint("DistanceX", 1, 1, 1, 2, 8.0),
    Sketcher.Constraint("DistanceX", 5, 1, 5, 2, 2.0),
    Sketcher.Constraint("DistanceY", 11, 1, 11, 2, 58.0),
    Sketcher.Constraint("DistanceX", 12, 2, 12, 1, 20.8),
    Sketcher.Constraint("DistanceY", 0, 2, 0, 1, 0.6),
    Sketcher.Constraint("DistanceY", 8, 2, 8, 1, 54.9),
    Sketcher.Constraint("DistanceY", 9, 3, -1, 1, 55.0),
    Sketcher.Constraint("DistanceY", 6, 2, -1, 1, 46.0),
    Sketcher.Constraint("DistanceY", 13, 2, -1, 1, 56.0),
    Sketcher.Constraint("DistanceX", 0, 2, 9, 3, 7.0),
    Sketcher.Constraint("DistanceY", 9, 1, 1, 2, 56.0),
    Sketcher.Constraint("DistanceX", -1, 1, 9, 3, 34.1),
    Sketcher.Constraint("DistanceX", 4, 2, -1, 1, 27.1),
])
pad3 = body.newObject("PartDesign::Pad", "Pad002")
pad3.Profile = sketch18
pad3.Length = 2
pad3.Reversed = True

doc.recompute()
